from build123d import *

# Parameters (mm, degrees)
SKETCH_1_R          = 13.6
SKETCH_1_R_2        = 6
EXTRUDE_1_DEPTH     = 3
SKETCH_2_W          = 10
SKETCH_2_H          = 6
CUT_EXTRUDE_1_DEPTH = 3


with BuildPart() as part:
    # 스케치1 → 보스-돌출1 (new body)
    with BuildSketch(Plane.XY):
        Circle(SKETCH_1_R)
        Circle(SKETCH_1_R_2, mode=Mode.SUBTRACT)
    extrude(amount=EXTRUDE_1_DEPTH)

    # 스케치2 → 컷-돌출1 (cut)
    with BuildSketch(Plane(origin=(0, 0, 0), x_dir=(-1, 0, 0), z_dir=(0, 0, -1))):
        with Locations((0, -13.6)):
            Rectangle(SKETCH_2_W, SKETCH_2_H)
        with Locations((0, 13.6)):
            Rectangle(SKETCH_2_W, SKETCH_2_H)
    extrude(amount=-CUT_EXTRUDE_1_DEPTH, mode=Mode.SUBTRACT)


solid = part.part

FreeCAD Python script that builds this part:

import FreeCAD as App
import Part
import Sketcher

V = App.Vector


def add_polygon(sketch, points):
    """Adds a closed chain of lines whose ends are joined by coincident constraints."""
    first, n = sketch.GeometryCount, len(points)
    for a, b in zip(points, points[1:] + points[:1]):
        sketch.addGeometry(Part.LineSegment(App.Vector(*a, 0), App.Vector(*b, 0)), False)
    for i in range(n):
        sketch.addConstraint(Sketcher.Constraint("Coincident", first + i, 2, first + (i + 1) % n, 1))

doc = App.newDocument("Part")
body = doc.addObject("PartDesign::Body", "Body")

sketch1 = doc.addObject("Sketcher::SketchObject", "Sketch")
body.addObject(sketch1)
sketch1.AttachmentSupport = (doc.XY_Plane, [""])
sketch1.MapMode = "FlatFace"
sketch1.addGeometry(Part.Circle(V(0, 0, 0), V(0, 0, 1), 13.6), False)
sketch1.addGeometry(Part.Circle(V(0, 0, 0), V(0, 0, 1), 6), False)
sketch1.addConstraint(Sketcher.Constraint("Coincident", 0, 3, -1, 1))
sketch1.addConstraint(Sketcher.Constraint("Coincident", 1, 3, -1, 1))
sketch1.addConstraint(Sketcher.Constraint("Diameter", 1, 12.0))
sketch1.addConstraint(Sketcher.Constraint("Diameter", 0, 27.2))
pad1 = doc.addObject("PartDesign::Pad", "Pad")
body.addObject(pad1)
pad1.Profile = sketch1
pad1.Length = 3

sketch2 = doc.addObject("Sketcher::SketchObject", "Sketch001")
body.addObject(sketch2)
sketch2.AttachmentSupport = (doc.XY_Plane, [""])
sketch2.MapMode = "FlatFace"
add_polygon(sketch2, [(5, -10.6), (5, -16.6), (-5, -16.6), (-5, -10.6)])
add_polygon(sketch2, [(5, 16.6), (5, 10.6), (-5, 10.6), (-5, 16.6)])
sketch2.addConstraint(Sketcher.Constraint("Vertical", 0))
sketch2.addConstraint(Sketcher.Constraint("Horizontal", 1))
sketch2.addConstraint(Sketcher.Constraint("Vertical", 2))
sketch2.addConstraint(Sketcher.Constraint("Horizontal", 3))
sketch2.addConstraint(Sketcher.Constraint("Vertical", 4))
sketch2.addConstraint(Sketcher.Constraint("Horizontal", 5))
sketch2.addConstraint(Sketcher.Constraint("Vertical", 6))
sketch2.addConstraint(Sketcher.Constraint("Horizontal", 7))
sketch2.addConstraint(Sketcher.Constraint("Symmetric", 2, 2, 4, 2, -1, 1))
sketch2.addConstraint(Sketcher.Constraint("Symmetric", 0, 2, 6, 2, -1, 1))
sketch2.addConstraint(Sketcher.Constraint("Vertical", 3, 2, 4, 2))
sketch2.addConstraint(Sketcher.Constraint("DistanceX", 1, 2, 1, 1, 10.0))
sketch2.addConstraint(Sketcher.Constraint("DistanceY", 0, 2, 0, 1, 6.0))
sketch2.addConstraint(Sketcher.Constraint("DistanceY", 0, 2, -1, 1, 16.6))
pocket1 = doc.addObject("PartDesign::Pocket", "Pocket")
body.addObject(pocket1)
pocket1.Profile = sketch2
pocket1.Length = 3
pocket1.Reversed = True

doc.recompute()
